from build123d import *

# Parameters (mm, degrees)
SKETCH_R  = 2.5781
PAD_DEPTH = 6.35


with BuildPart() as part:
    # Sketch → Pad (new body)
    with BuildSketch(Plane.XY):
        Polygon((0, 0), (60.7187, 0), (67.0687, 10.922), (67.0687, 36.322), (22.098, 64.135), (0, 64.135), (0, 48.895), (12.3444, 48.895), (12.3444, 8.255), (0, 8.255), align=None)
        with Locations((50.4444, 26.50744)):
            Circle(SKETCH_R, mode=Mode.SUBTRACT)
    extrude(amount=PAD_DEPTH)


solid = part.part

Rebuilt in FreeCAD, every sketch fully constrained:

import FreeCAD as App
import Part
import Sketcher
from FreeCAD import Vector
Q = App.Units.Quantity


def add_polygon(sketch, points):
    """Adds a closed chain of lines whose ends are joined by coincident constraints."""
    first, n = sketch.GeometryCount, len(points)
    for a, b in zip(points, points[1:] + points[:1]):
        sketch.addGeometry(Part.LineSegment(App.Vector(*a, 0), App.Vector(*b, 0)), False)
    for i in range(n):
        sketch.addConstraint(Sketcher.Constraint("Coincident", first + i, 2, first + (i + 1) % n, 1))

doc = App.newDocument("Part")
params = doc.addObject("Spreadsheet::Sheet", "Params")
for row, (alias, value) in enumerate([
    ("sketch1_height", "1 in"),
    ("sketch1_diameter", "0.203 in"),
    ("sketch1_height2", "0.6 in"),
    ("sketch1_height3", "1.6 in"),
    ("sketch1_width", "0.87 in"),
    ("pad1_length", "0.25 in"),
], start=1):
    params.set(f"A{row}", alias)
    params.set(f"B{row}", "=" + value)
    params.setAlias(f"B{row}", alias)

body = doc.addObject("PartDesign::Body", "Body")

# Sketch on XY plane
sketch1 = body.newObject("Sketcher::SketchObject", "Sketch")
sketch1.AttachmentSupport = (doc.getObject("XY_Plane"), [""])
sketch1.MapMode = "FlatFace"
add_polygon(sketch1, [(0, 0), (60.7187, 0), (67.0687, 10.922), (67.0687, 36.322), (22.098, 64.135), (0, 64.135), (0, 48.895), (12.3444, 48.895), (12.3444, 8.255), (0, 8.255)])  # lines 0-9
sketch1.addGeometry(Part.Circle(Vector(50.4444, 26.50744, 0), Vector(0, 0, 1), 2.5781), False)  # 10
sketch1.addConstraint([
    Sketcher.Constraint("Horizontal", 0),
    Sketcher.Constraint("Vertical", 2),
    Sketcher.Constraint("Horizontal", 4),
    Sketcher.Constraint("Vertical", 5),
    Sketcher.Constraint("Horizontal", 6),
    Sketcher.Constraint("Vertical", 7),
    Sketcher.Constraint("Horizontal", 8),
    Sketcher.Constraint("Vertical", 9),
    Sketcher.Constraint("Coincident", 9, 2, -1, 1),
    Sketcher.Constraint("PointOnObject", 4, 2, -2),
    Sketcher.Constraint("DistanceY", 2, 1, 2, 2, Q("1 in")),
    Sketcher.Constraint("Diameter", 10, Q("0.203 in")),
    Sketcher.Constraint("DistanceY", 5, 2, 5, 1, Q("0.6 in")),
    Sketcher.Constraint("DistanceY", 7, 2, 7, 1, Q("1.6 in")),
    Sketcher.Constraint("DistanceX", 4, 2, 4, 1, Q("0.87 in")),
    Sketcher.Constraint("DistanceX", 6, 2, 10, 3, Q("1.5 in")),
    Sketcher.Constraint("DistanceX", 6, 1, 6, 2, Q("0.486 in")),
    Sketcher.Constraint("DistanceY", 9, 2, 9, 1, Q("0.325 in")),
    Sketcher.Constraint("DistanceY", -1, 1, 1, 2, Q("0.43 in")),
    Sketcher.Constraint("DistanceX", 0, 2, 1, 2, Q("0.25 in")),
    Sketcher.Constraint("DistanceX", 0, 1, 0, 2, Q("2.3905 in")),
    Sketcher.Constraint("DistanceY", -1, 1, 10, 3, Q("1.0436 in")),
])
sketch1.setExpression("Constraints[20]", "Params.sketch1_height")
sketch1.setExpression("Constraints[21]", "Params.sketch1_diameter")
sketch1.setExpression("Constraints[22]", "Params.sketch1_height2")
sketch1.setExpression("Constraints[23]", "Params.sketch1_height3")
sketch1.setExpression("Constraints[24]", "Params.sketch1_width")
pad1 = body.newObject("PartDesign::Pad", "Pad")
pad1.Profile = sketch1
pad1.setExpression("Length", "Params.pad1_length")

doc.recompute()
